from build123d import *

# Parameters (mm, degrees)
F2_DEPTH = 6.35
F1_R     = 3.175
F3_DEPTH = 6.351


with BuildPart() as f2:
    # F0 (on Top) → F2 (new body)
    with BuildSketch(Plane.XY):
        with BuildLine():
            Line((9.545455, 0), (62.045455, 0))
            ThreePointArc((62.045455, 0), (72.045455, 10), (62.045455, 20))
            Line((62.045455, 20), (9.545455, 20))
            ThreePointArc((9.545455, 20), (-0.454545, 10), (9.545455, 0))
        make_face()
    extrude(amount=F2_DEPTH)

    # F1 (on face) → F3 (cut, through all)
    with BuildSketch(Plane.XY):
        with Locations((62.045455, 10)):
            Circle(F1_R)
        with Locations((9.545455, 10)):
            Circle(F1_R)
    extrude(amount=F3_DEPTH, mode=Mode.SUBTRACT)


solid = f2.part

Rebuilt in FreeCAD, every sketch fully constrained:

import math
import FreeCAD as App
import Part
import Sketcher
from FreeCAD import Vector
Q = App.Units.Quantity

doc = App.newDocument("Part")
body = doc.addObject("PartDesign::Body", "Body")

# Sketch on XY plane
sketch1 = doc.addObject("Sketcher::SketchObject", "Sketch")
body.addObject(sketch1)
sketch1.AttachmentSupport = (doc.XY_Plane, [""])
sketch1.MapMode = "FlatFace"
sketch1.addGeometry(Part.LineSegment(Vector(10, 0, 0), Vector(62, 0, 0)), False)
sketch1.addGeometry(Part.ArcOfCircle(Part.Circle(Vector(62, 10, 0), Vector(0, 0, 1), 10), math.radians(-90), math.radians(90)), False)
sketch1.addGeometry(Part.LineSegment(Vector(62, 20, 0), Vector(10, 20, 0)), False)
sketch1.addGeometry(Part.ArcOfCircle(Part.Circle(Vector(10, 10, 0), Vector(0, 0, 1), 10), math.radians(90), math.radians(270)), False)
sketch1.addConstraint(Sketcher.Constraint("Tangent", 0, 2, 1, 1))
sketch1.addConstraint(Sketcher.Constraint("Tangent", 1, 2, 2, 1))
sketch1.addConstraint(Sketcher.Constraint("Tangent", 2, 2, 3, 1))
sketch1.addConstraint(Sketcher.Constraint("Tangent", 3, 2, 0, 1))
sketch1.addConstraint(Sketcher.Constraint("Horizontal", 0))
sketch1.addConstraint(Sketcher.Constraint("Horizontal", 2))
sketch1.addConstraint(Sketcher.Constraint("PointOnObject", 0, 2, -1))
sketch1.addConstraint(Sketcher.Constraint("Radius", 1, Q("10 mm")))
sketch1.addConstraint(Sketcher.Constraint("DistanceX", 0, 1, 0, 2, Q("52.5 mm")))
sketch1.addConstraint(Sketcher.Constraint("DistanceX", -1, 1, 1, 3, Q("62.045455 mm")))
pad1 = doc.addObject("PartDesign::Pad", "Pad")
body.addObject(pad1)
pad1.Profile = sketch1
pad1.Length = 6.35

# Sketch on XY plane
sketch2 = doc.addObject("Sketcher::SketchObject", "Sketch001")
body.addObject(sketch2)
sketch2.AttachmentSupport = (doc.XY_Plane, [""])
sketch2.MapMode = "FlatFace"
sketch2.addGeometry(Part.Circle(Vector(62, 10, 0), Vector(0, 0, 1), 3.2), False)
sketch2.addGeometry(Part.Circle(Vector(9.5, 10, 0), Vector(0, 0, 1), 3.2), False)
sketch2.addConstraint(Sketcher.Constraint("Equal", 0, 1))
sketch2.addConstraint(Sketcher.Constraint("Horizontal", 0, 3, 1, 3))
sketch2.addConstraint(Sketcher.Constraint("Diameter", 0, Q("6.35 mm")))
sketch2.addConstraint(Sketcher.Constraint("DistanceY", -1, 1, 0, 3, Q("10 mm")))
sketch2.addConstraint(Sketcher.Constraint("DistanceX", 1, 3, 0, 3, Q("52.5 mm")))
sketch2.addConstraint(Sketcher.Constraint("DistanceX", -1, 1, 0, 3, Q("62.045455 mm")))
pocket1 = doc.addObject("PartDesign::Pocket", "Pocket")
body.addObject(pocket1)
pocket1.Profile = sketch2
pocket1.Type = "ThroughAll"
pocket1.Reversed = True

doc.recompute()
